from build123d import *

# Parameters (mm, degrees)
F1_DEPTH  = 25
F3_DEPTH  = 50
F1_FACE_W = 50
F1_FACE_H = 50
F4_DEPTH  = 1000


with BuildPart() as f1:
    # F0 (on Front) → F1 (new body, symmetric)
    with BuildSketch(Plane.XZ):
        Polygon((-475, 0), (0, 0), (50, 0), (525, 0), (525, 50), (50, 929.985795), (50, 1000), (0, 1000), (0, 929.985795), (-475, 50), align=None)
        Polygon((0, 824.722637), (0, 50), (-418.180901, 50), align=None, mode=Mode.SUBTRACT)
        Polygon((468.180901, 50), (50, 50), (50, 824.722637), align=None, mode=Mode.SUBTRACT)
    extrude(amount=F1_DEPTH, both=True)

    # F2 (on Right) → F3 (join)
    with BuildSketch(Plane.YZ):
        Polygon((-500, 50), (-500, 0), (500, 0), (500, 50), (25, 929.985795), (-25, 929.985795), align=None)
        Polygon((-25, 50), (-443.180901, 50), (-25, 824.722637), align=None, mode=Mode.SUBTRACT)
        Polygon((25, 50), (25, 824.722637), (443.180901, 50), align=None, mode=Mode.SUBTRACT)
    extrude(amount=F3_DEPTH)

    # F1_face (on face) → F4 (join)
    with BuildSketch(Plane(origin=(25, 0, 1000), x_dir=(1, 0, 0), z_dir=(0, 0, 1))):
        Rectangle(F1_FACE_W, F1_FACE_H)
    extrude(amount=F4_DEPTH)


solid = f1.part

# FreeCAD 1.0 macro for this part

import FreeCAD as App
import Part
import Sketcher

doc = App.newDocument("Part")
params = doc.addObject("Spreadsheet::Sheet", "Params")
for row, (alias, value) in enumerate([
    ("sketch1_width", "1000 mm"),
    ("sketch1_width2", "50 mm"),
    ("sketch1_length", "1000 mm"),
    ("pad1_length", "50 mm"),
    ("sketch2_width", "1000 mm"),
    ("sketch2_width2", "50 mm"),
    ("sketch2_length", "1000 mm"),
    ("pad2_length", "50 mm"),
    ("sketch3_width", "50 mm"),
    ("pad3_length", "1000 mm"),
], start=1):
    params.set(f"A{row}", alias)
    params.set(f"B{row}", "=" + value)
    params.setAlias(f"B{row}", alias)

body = doc.addObject("PartDesign::Body", "Body")

# Sketch on XZ plane
sketch1 = body.newObject("Sketcher::SketchObject", "Sketch")
sketch1.AttachmentSupport = (doc.getObject("XZ_Plane"), [""])
sketch1.MapMode = "FlatFace"
sketch1.addGeometry([
    Part.LineSegment(App.Vector(-475, 0, 0), App.Vector(525, 0, 0)),  # 0
    Part.LineSegment(App.Vector(525, 0, 0), App.Vector(525, 50, 0)),  # 1
    Part.LineSegment(App.Vector(525, 50, 0), App.Vector(50, 930, 0)),  # 2
    Part.LineSegment(App.Vector(50, 930, 0), App.Vector(50, 1000, 0)),  # 3
    Part.LineSegment(App.Vector(50, 1000, 0), App.Vector(0, 1000, 0)),  # 4
    Part.LineSegment(App.Vector(0, 1000, 0), App.Vector(0, 930, 0)),  # 5
    Part.LineSegment(App.Vector(0, 930, 0), App.Vector(-475, 50, 0)),  # 6
    Part.LineSegment(App.Vector(-475, 50, 0), App.Vector(-475, 0, 0)),  # 7
    Part.LineSegment(App.Vector(50, 825, 0), App.Vector(468, 50, 0)),  # 8
    Part.LineSegment(App.Vector(468, 50, 0), App.Vector(50, 50, 0)),  # 9
    Part.LineSegment(App.Vector(50, 50, 0), App.Vector(50, 825, 0)),  # 10
    Part.LineSegment(App.Vector(-418, 50, 0), App.Vector(0, 825, 0)),  # 11
    Part.LineSegment(App.Vector(0, 825, 0), App.Vector(0, 50, 0)),  # 12
    Part.LineSegment(App.Vector(0, 50, 0), App.Vector(-418, 50, 0)),  # 13
], False)
sketch1.addConstraint([
    Sketcher.Constraint("Coincident", 0, 2, 1, 1),
    Sketcher.Constraint("Coincident", 1, 2, 2, 1),
    Sketcher.Constraint("Coincident", 2, 2, 3, 1),
    Sketcher.Constraint("Coincident", 3, 2, 4, 1),
    Sketcher.Constraint("Coincident", 4, 2, 5, 1),
    Sketcher.Constraint("Coincident", 5, 2, 6, 1),
    Sketcher.Constraint("Coincident", 6, 2, 7, 1),
    Sketcher.Constraint("Coincident", 7, 2, 0, 1),
    Sketcher.Constraint("Coincident", 8, 2, 9, 1),
    Sketcher.Constraint("Coincident", 9, 2, 10, 1),
    Sketcher.Constraint("Coincident", 10, 2, 8, 1),
    Sketcher.Constraint("Coincident", 11, 2, 12, 1),
    Sketcher.Constraint("Coincident", 12, 2, 13, 1),
    Sketcher.Constraint("Coincident", 13, 2, 11, 1),
    Sketcher.Constraint("Horizontal", 0),
    Sketcher.Constraint("Vertical", 1),
    Sketcher.Constraint("Vertical", 3),
    Sketcher.Constraint("Horizontal", 4),
    Sketcher.Constraint("Vertical", 5),
    Sketcher.Constraint("Vertical", 7),
    Sketcher.Constraint("Horizontal", 9),
    Sketcher.Constraint("Vertical", 10),
    Sketcher.Constraint("Vertical", 12),
    Sketcher.Constraint("Horizontal", 13),
    Sketcher.Constraint("PointOnObject", 0, 2, -1),
    Sketcher.Constraint("PointOnObject", 4, 2, -2),
    Sketcher.Constraint("PointOnObject", 11, 2, -2),
    Sketcher.Constraint("Parallel", 2, 8),
    Sketcher.Constraint("Parallel", 6, 11),
    Sketcher.Constraint("Horizontal", 2, 2, 5, 2),
    Sketcher.Constraint("Horizontal", 1, 2, 6, 2),
    Sketcher.Constraint("Horizontal", 6, 2, 8, 2),
    Sketcher.Constraint("Horizontal", 10, 2, 11, 2),
    Sketcher.Constraint("Horizontal", 9, 2, 12, 2),
    Sketcher.Constraint("Vertical", 3, 2, 9, 2),
    Sketcher.Constraint("Equal", 9, 13),
    Sketcher.Constraint("Equal", 4, 1),
    Sketcher.Constraint("DistanceX", 0, 1, 0, 2, 1000.0),
    Sketcher.Constraint("DistanceX", 4, 2, 4, 1, 50.0),
    Sketcher.Constraint("Distance", 2, 1000.0),
    Sketcher.Constraint("DistanceY", -1, 1, 3, 2, 1000.0),
    Sketcher.Constraint("DistanceX", 9, 2, 9, 1, 418.180901),
])
sketch1.setExpression("Constraints[37]", "Params.sketch1_width")
sketch1.setExpression("Constraints[38]", "Params.sketch1_width2")
sketch1.setExpression("Constraints[39]", "Params.sketch1_length")
pad1 = body.newObject("PartDesign::Pad", "Pad")
pad1.Profile = sketch1
pad1.setExpression("Length", "Params.pad1_length")
pad1.Midplane = True

# Sketch on YZ plane
sketch2 = body.newObject("Sketcher::SketchObject", "Sketch001")
sketch2.AttachmentSupport = (doc.getObject("YZ_Plane"), [""])
sketch2.MapMode = "FlatFace"
sketch2.addGeometry([
    Part.LineSegment(App.Vector(-500, 50, 0), App.Vector(-500, 0, 0)),  # 0
    Part.LineSegment(App.Vector(-500, 0, 0), App.Vector(500, 0, 0)),  # 1
    Part.LineSegment(App.Vector(500, 0, 0), App.Vector(500, 50, 0)),  # 2
    Part.LineSegment(App.Vector(500, 50, 0), App.Vector(25, 930, 0)),  # 3
    Part.LineSegment(App.Vector(25, 930, 0), App.Vector(-25, 930, 0)),  # 4
    Part.LineSegment(App.Vector(-25, 930, 0), App.Vector(-500, 50, 0)),  # 5
    Part.LineSegment(App.Vector(443, 50, 0), App.Vector(25, 50, 0)),  # 6
    Part.LineSegment(App.Vector(25, 50, 0), App.Vector(25, 825, 0)),  # 7
    Part.LineSegment(App.Vector(25, 825, 0), App.Vector(443, 50, 0)),  # 8
    Part.LineSegment(App.Vector(-25, 825, 0), App.Vector(-25, 50, 0)),  # 9
    Part.LineSegment(App.Vector(-25, 50, 0), App.Vector(-443, 50, 0)),  # 10
    Part.LineSegment(App.Vector(-443, 50, 0), App.Vector(-25, 825, 0)),  # 11
], False)
sketch2.addConstraint([
    Sketcher.Constraint("Coincident", 0, 2, 1, 1),
    Sketcher.Constraint("Coincident", 1, 2, 2, 1),
    Sketcher.Constraint("Coincident", 2, 2, 3, 1),
    Sketcher.Constraint("Coincident", 3, 2, 4, 1),
    Sketcher.Constraint("Coincident", 4, 2, 5, 1),
    Sketcher.Constraint("Coincident", 5, 2, 0, 1),
    Sketcher.Constraint("Coincident", 6, 2, 7, 1),
    Sketcher.Constraint("Coincident", 7, 2, 8, 1),
    Sketcher.Constraint("Coincident", 8, 2, 6, 1),
    Sketcher.Constraint("Coincident", 9, 2, 10, 1),
    Sketcher.Constraint("Coincident", 10, 2, 11, 1),
    Sketcher.Constraint("Coincident", 11, 2, 9, 1),
    Sketcher.Constraint("Vertical", 0),
    Sketcher.Constraint("Horizontal", 1),
    Sketcher.Constraint("Vertical", 2),
    Sketcher.Constraint("Horizontal", 4),
    Sketcher.Constraint("Horizontal", 6),
    Sketcher.Constraint("Vertical", 7),
    Sketcher.Constraint("Vertical", 9),
    Sketcher.Constraint("Horizontal", 10),
    Sketcher.Constraint("Symmetric", 0, 2, 1, 2, -1, 1),
    Sketcher.Constraint("Symmetric", 6, 2, 9, 2, -2),
    Sketcher.Constraint("Parallel", 3, 8),
    Sketcher.Constraint("Parallel", 5, 11),
    Sketcher.Constraint("Horizontal", 2, 2, 5, 2),
    Sketcher.Constraint("Horizontal", 5, 2, 6, 2),
    Sketcher.Constraint("Horizontal", 7, 2, 11, 2),
    Sketcher.Constraint("Vertical", 3, 2, 6, 2),
    Sketcher.Constraint("Vertical", 4, 2, 9, 2),
    Sketcher.Constraint("Equal", 4, 0),
    Sketcher.Constraint("DistanceX", 1, 1, 1, 2, 1000.0),
    Sketcher.Constraint("DistanceX", 4, 2, 4, 1, 50.0),
    Sketcher.Constraint("Distance", 3, 1000.0),
    Sketcher.Constraint("DistanceX", 6, 2, 6, 1, 418.180901),
])
sketch2.setExpression("Constraints[30]", "Params.sketch2_width")
sketch2.setExpression("Constraints[31]", "Params.sketch2_width2")
sketch2.setExpression("Constraints[32]", "Params.sketch2_length")
pad2 = body.newObject("PartDesign::Pad", "Pad001")
pad2.Profile = sketch2
pad2.setExpression("Length", "Params.pad2_length")

# Sketch on XY plane
sketch3 = body.newObject("Sketcher::SketchObject", "Sketch002")
sketch3.AttachmentSupport = (doc.getObject("XY_Plane"), [""])
sketch3.MapMode = "FlatFace"
sketch3.AttachmentOffset = App.Placement(App.Vector(0, 0, 1000), App.Rotation())
sketch3.addGeometry([
    Part.LineSegment(App.Vector(0, 25, 0), App.Vector(0, -25, 0)),
    Part.LineSegment(App.Vector(0, -25, 0), App.Vector(50, -25, 0)),
    Part.LineSegment(App.Vector(50, -25, 0), App.Vector(50, 25, 0)),
    Part.LineSegment(App.Vector(50, 25, 0), App.Vector(0, 25, 0)),
], False)
sketch3.addConstraint([
    Sketcher.Constraint("Coincident", 0, 2, 1, 1),
    Sketcher.Constraint("Coincident", 1, 2, 2, 1),
    Sketcher.Constraint("Coincident", 2, 2, 3, 1),
    Sketcher.Constraint("Coincident", 3, 2, 0, 1),
    Sketcher.Constraint("Vertical", 0),
    Sketcher.Constraint("Horizontal", 1),
    Sketcher.Constraint("Vertical", 2),
    Sketcher.Constraint("Horizontal", 3),
    Sketcher.Constraint("Symmetric", 0, 2, 3, 2, -1, 1),
    Sketcher.Constraint("Equal", 3, 0),
    Sketcher.Constraint("DistanceX", 1, 1, 1, 2, 50.0),
])
sketch3.setExpression("Constraints[10]", "Params.sketch3_width")
pad3 = body.newObject("PartDesign::Pad", "Pad002")
pad3.Profile = sketch3
pad3.setExpression("Length", "Params.pad3_length")

doc.recompute()
